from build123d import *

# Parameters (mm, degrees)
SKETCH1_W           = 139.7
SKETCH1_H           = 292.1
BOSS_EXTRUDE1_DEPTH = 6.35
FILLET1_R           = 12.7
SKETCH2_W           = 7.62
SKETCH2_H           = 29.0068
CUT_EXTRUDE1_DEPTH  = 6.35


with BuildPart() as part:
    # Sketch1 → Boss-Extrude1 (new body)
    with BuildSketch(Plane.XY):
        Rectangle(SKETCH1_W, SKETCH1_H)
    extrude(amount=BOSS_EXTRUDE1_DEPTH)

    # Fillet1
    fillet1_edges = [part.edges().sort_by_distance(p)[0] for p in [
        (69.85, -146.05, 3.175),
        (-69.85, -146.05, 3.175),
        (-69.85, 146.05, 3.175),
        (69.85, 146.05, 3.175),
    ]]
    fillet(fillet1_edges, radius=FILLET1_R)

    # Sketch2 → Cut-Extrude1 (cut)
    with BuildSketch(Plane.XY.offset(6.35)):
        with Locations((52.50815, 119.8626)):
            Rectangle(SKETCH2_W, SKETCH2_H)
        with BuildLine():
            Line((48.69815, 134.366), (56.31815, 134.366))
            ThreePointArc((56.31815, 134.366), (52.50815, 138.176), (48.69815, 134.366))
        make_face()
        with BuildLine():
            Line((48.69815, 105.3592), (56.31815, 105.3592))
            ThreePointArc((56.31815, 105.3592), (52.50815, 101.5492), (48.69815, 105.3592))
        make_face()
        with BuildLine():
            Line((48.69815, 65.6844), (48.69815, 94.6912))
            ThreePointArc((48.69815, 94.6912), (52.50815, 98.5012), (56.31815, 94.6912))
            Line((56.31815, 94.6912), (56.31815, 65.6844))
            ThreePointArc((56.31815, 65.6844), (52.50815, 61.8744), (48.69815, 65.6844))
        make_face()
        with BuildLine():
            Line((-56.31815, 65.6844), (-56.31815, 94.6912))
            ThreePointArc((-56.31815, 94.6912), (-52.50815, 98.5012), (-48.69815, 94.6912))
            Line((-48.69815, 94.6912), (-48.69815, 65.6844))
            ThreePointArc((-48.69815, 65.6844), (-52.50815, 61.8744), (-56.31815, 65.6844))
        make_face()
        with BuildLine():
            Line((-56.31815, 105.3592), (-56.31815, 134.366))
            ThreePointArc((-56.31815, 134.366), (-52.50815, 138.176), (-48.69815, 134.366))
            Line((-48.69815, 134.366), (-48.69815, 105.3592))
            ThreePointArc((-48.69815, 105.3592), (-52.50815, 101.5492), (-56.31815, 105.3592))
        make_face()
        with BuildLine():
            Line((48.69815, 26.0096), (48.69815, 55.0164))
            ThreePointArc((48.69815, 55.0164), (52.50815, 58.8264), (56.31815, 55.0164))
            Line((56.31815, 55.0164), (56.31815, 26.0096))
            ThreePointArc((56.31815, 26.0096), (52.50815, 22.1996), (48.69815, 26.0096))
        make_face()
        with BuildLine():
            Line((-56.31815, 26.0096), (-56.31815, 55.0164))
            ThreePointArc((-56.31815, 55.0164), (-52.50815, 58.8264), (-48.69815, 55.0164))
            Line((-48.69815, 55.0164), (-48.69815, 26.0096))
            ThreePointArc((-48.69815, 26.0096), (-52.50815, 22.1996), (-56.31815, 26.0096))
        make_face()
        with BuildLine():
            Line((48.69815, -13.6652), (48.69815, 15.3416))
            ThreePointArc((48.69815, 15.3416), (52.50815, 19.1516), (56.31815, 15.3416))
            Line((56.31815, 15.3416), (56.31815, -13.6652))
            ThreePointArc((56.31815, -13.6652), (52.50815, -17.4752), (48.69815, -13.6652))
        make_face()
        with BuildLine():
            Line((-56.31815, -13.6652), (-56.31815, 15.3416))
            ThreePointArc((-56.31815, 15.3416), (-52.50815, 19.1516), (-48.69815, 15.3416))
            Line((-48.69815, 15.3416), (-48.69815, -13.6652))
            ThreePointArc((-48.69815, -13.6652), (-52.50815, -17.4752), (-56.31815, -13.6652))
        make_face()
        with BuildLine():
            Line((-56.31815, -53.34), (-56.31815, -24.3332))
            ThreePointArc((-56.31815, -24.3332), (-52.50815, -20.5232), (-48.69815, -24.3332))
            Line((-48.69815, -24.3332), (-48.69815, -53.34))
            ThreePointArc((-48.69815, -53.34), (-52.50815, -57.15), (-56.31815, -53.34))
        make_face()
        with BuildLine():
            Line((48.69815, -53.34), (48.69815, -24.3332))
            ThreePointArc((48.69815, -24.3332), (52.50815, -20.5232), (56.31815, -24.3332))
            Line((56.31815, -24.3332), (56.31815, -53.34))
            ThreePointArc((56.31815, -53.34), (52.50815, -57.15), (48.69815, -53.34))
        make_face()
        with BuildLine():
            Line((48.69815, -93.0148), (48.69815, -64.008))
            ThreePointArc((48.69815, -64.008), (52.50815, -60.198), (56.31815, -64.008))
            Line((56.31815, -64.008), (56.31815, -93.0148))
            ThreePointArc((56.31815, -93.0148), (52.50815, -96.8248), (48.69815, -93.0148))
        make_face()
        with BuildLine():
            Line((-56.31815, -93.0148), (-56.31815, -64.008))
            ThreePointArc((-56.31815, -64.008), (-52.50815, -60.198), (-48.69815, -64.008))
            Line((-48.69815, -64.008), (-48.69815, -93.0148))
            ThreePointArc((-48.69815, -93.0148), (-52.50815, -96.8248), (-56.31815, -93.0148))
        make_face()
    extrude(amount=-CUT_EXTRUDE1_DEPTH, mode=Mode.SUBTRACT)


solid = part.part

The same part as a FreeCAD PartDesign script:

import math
import FreeCAD as App
import Part
import Sketcher
from FreeCAD import Vector
Q = App.Units.Quantity


def edges_at(feature, points):
    """Names of the edges that pass closest to the given points."""
    edges = feature.Shape.Edges
    near = lambda p: min(range(len(edges)), key=lambda i: edges[i].distToShape(Part.Vertex(*p))[0])
    return sorted({f"Edge{near(p) + 1}" for p in points})

doc = App.newDocument("Part")
body = doc.addObject("PartDesign::Body", "Body")

sketch1 = doc.addObject("Sketcher::SketchObject", "Sketch")
body.addObject(sketch1)
sketch1.AttachmentSupport = (doc.XY_Plane, [""])
sketch1.MapMode = "FlatFace"
sketch1.addGeometry([
    Part.LineSegment(Vector(-70, 146, 0), Vector(-70, -146, 0)),
    Part.LineSegment(Vector(-70, -146, 0), Vector(70, -146, 0)),
    Part.LineSegment(Vector(70, -146, 0), Vector(70, 146, 0)),
    Part.LineSegment(Vector(70, 146, 0), Vector(-70, 146, 0)),
], False)
sketch1.addConstraint([
    Sketcher.Constraint("Coincident", 0, 2, 1, 1),
    Sketcher.Constraint("Coincident", 1, 2, 2, 1),
    Sketcher.Constraint("Coincident", 2, 2, 3, 1),
    Sketcher.Constraint("Coincident", 3, 2, 0, 1),
    Sketcher.Constraint("Vertical", 0),
    Sketcher.Constraint("Horizontal", 1),
    Sketcher.Constraint("Vertical", 2),
    Sketcher.Constraint("Horizontal", 3),
    Sketcher.Constraint("Symmetric", 0, 2, 2, 2, -1, 1),
    Sketcher.Constraint("DistanceX", 1, 1, 1, 2, Q("5.5 in")),
    Sketcher.Constraint("DistanceY", 0, 2, 0, 1, Q("11.5 in")),
])
pad1 = doc.addObject("PartDesign::Pad", "Pad")
body.addObject(pad1)
pad1.Profile = sketch1
pad1.Length = Q("0.25 in")
doc.recompute()

fillet = doc.addObject("PartDesign::Fillet", "Fillet")
body.addObject(fillet)
fillet.Base = (pad1, edges_at(pad1, [
    (69.85, -146.05, 3.175),
    (-69.85, -146.05, 3.175),
    (-69.85, 146.05, 3.175),
    (69.85, 146.05, 3.175),
]))
fillet.Radius = Q("0.5 in")

sketch2 = doc.addObject("Sketcher::SketchObject", "Sketch001")
body.addObject(sketch2)
sketch2.AttachmentSupport = (doc.XY_Plane, [""])
sketch2.MapMode = "FlatFace"
sketch2.AttachmentOffset = App.Placement(Vector(0, 0, 0.25 * 25.4), App.Rotation())
sketch2.addGeometry([
    Part.LineSegment(Vector(48.7, 134.4, 0), Vector(48.7, 105.4, 0)),
    Part.ArcOfCircle(Part.Circle(Vector(52.5, 105.4, 0), Vector(0, 0, 1), 3.8), math.radians(180), math.radians(360)),
    Part.LineSegment(Vector(56.3, 105.4, 0), Vector(56.3, 134.4, 0)),
    Part.ArcOfCircle(Part.Circle(Vector(52.5, 134.4, 0), Vector(0, 0, 1), 3.8), math.radians(0), math.radians(180)),
    Part.LineSegment(Vector(48.7, 94.7, 0), Vector(48.7, 65.7, 0)),
    Part.ArcOfCircle(Part.Circle(Vector(52.5, 65.7, 0), Vector(0, 0, 1), 3.8), math.radians(180), math.radians(360)),
    Part.LineSegment(Vector(56.3, 65.7, 0), Vector(56.3, 94.7, 0)),
    Part.ArcOfCircle(Part.Circle(Vector(52.5, 94.7, 0), Vector(0, 0, 1), 3.8), math.radians(0), math.radians(180)),
    Part.LineSegment(Vector(-56.3, 94.7, 0), Vector(-56.3, 65.7, 0)),
    Part.ArcOfCircle(Part.Circle(Vector(-52.5, 65.7, 0), Vector(0, 0, 1), 3.8), math.radians(180), math.radians(360)),
    Part.LineSegment(Vector(-48.7, 65.7, 0), Vector(-48.7, 94.7, 0)),
    Part.ArcOfCircle(Part.Circle(Vector(-52.5, 94.7, 0), Vector(0, 0, 1), 3.8), math.radians(0), math.radians(180)),
    Part.LineSegment(Vector(-56.3, 134.4, 0), Vector(-56.3, 105.4, 0)),
    Part.ArcOfCircle(Part.Circle(Vector(-52.5, 105.4, 0), Vector(0, 0, 1), 3.8), math.radians(180), math.radians(360)),
    Part.LineSegment(Vector(-48.7, 105.4, 0), Vector(-48.7, 134.4, 0)),
    Part.ArcOfCircle(Part.Circle(Vector(-52.5, 134.4, 0), Vector(0, 0, 1), 3.8), math.radians(0), math.radians(180)),
    Part.LineSegment(Vector(48.7, 55, 0), Vector(48.7, 26, 0)),
    Part.ArcOfCircle(Part.Circle(Vector(52.5, 26, 0), Vector(0, 0, 1), 3.8), math.radians(180), math.radians(360)),
    Part.LineSegment(Vector(56.3, 26, 0), Vector(56.3, 55, 0)),
    Part.ArcOfCircle(Part.Circle(Vector(52.5, 55, 0), Vector(0, 0, 1), 3.8), math.radians(0), math.radians(180)),
    Part.LineSegment(Vector(-56.3, 55, 0), Vector(-56.3, 26, 0)),
    Part.ArcOfCircle(Part.Circle(Vector(-52.5, 26, 0), Vector(0, 0, 1), 3.8), math.radians(180), math.radians(360)),
    Part.LineSegment(Vector(-48.7, 26, 0), Vector(-48.7, 55, 0)),
    Part.ArcOfCircle(Part.Circle(Vector(-52.5, 55, 0), Vector(0, 0, 1), 3.8), math.radians(0), math.radians(180)),
    Part.LineSegment(Vector(48.7, 15.3, 0), Vector(48.7, -13.7, 0)),
    Part.ArcOfCircle(Part.Circle(Vector(52.5, -13.7, 0), Vector(0, 0, 1), 3.8), math.radians(180), math.radians(360)),
    Part.LineSegment(Vector(56.3, -13.7, 0), Vector(56.3, 15.3, 0)),
    Part.ArcOfCircle(Part.Circle(Vector(52.5, 15.3, 0), Vector(0, 0, 1), 3.8), math.radians(0), math.radians(180)),
    Part.LineSegment(Vector(-56.3, 15.3, 0), Vector(-56.3, -13.7, 0)),
    Part.ArcOfCircle(Part.Circle(Vector(-52.5, -13.7, 0), Vector(0, 0, 1), 3.8), math.radians(180), math.radians(360)),
    Part.LineSegment(Vector(-48.7, -13.7, 0), Vector(-48.7, 15.3, 0)),
    Part.ArcOfCircle(Part.Circle(Vector(-52.5, 15.3, 0), Vector(0, 0, 1), 3.8), math.radians(0), math.radians(180)),
    Part.LineSegment(Vector(-56.3, -24.3, 0), Vector(-56.3, -53.3, 0)),
    Part.ArcOfCircle(Part.Circle(Vector(-52.5, -53.3, 0), Vector(0, 0, 1), 3.8), math.radians(180), math.radians(360)),
    Part.LineSegment(Vector(-48.7, -53.3, 0), Vector(-48.7, -24.3, 0)),
    Part.ArcOfCircle(Part.Circle(Vector(-52.5, -24.3, 0), Vector(0, 0, 1), 3.8), math.radians(0), math.radians(180)),
    Part.LineSegment(Vector(48.7, -24.3, 0), Vector(48.7, -53.3, 0)),
    Part.ArcOfCircle(Part.Circle(Vector(52.5, -53.3, 0), Vector(0, 0, 1), 3.8), math.radians(180), math.radians(360)),
    Part.LineSegment(Vector(56.3, -53.3, 0), Vector(56.3, -24.3, 0)),
    Part.ArcOfCircle(Part.Circle(Vector(52.5, -24.3, 0), Vector(0, 0, 1), 3.8), math.radians(0), math.radians(180)),
    Part.LineSegment(Vector(48.7, -64, 0), Vector(48.7, -93, 0)),
    Part.ArcOfCircle(Part.Circle(Vector(52.5, -93, 0), Vector(0, 0, 1), 3.8), math.radians(180), math.radians(360)),
    Part.LineSegment(Vector(56.3, -93, 0), Vector(56.3, -64, 0)),
    Part.ArcOfCircle(Part.Circle(Vector(52.5, -64, 0), Vector(0, 0, 1), 3.8), math.radians(0), math.radians(180)),
    Part.LineSegment(Vector(-56.3, -64, 0), Vector(-56.3, -93, 0)),
    Part.ArcOfCircle(Part.Circle(Vector(-52.5, -93, 0), Vector(0, 0, 1), 3.8), math.radians(180), math.radians(360)),
    Part.LineSegment(Vector(-48.7, -93, 0), Vector(-48.7, -64, 0)),
    Part.ArcOfCircle(Part.Circle(Vector(-52.5, -64, 0), Vector(0, 0, 1), 3.8), math.radians(0), math.radians(180)),
], False)
sketch2.addConstraint([
    Sketcher.Constraint("Tangent", 0, 2, 1, 1),
    Sketcher.Constraint("Tangent", 1, 2, 2, 1),
    Sketcher.Constraint("Tangent", 2, 2, 3, 1),
    Sketcher.Constraint("Tangent", 3, 2, 0, 1),
    Sketcher.Constraint("Tangent", 4, 2, 5, 1),
    Sketcher.Constraint("Tangent", 5, 2, 6, 1),
    Sketcher.Constraint("Tangent", 6, 2, 7, 1),
    Sketcher.Constraint("Tangent", 7, 2, 4, 1),
    Sketcher.Constraint("Tangent", 8, 2, 9, 1),
    Sketcher.Constraint("Tangent", 9, 2, 10, 1),
    Sketcher.Constraint("Tangent", 10, 2, 11, 1),
    Sketcher.Constraint("Tangent", 11, 2, 8, 1),
    Sketcher.Constraint("Tangent", 12, 2, 13, 1),
    Sketcher.Constraint("Tangent", 13, 2, 14, 1),
    Sketcher.Constraint("Tangent", 14, 2, 15, 1),
    Sketcher.Constraint("Tangent", 15, 2, 12, 1),
    Sketcher.Constraint("Tangent", 16, 2, 17, 1),
    Sketcher.Constraint("Tangent", 17, 2, 18, 1),
    Sketcher.Constraint("Tangent", 18, 2, 19, 1),
    Sketcher.Constraint("Tangent", 19, 2, 16, 1),
    Sketcher.Constraint("Tangent", 20, 2, 21, 1),
    Sketcher.Constraint("Tangent", 21, 2, 22, 1),
    Sketcher.Constraint("Tangent", 22, 2, 23, 1),
    Sketcher.Constraint("Tangent", 23, 2, 20, 1),
    Sketcher.Constraint("Tangent", 24, 2, 25, 1),
    Sketcher.Constraint("Tangent", 25, 2, 26, 1),
    Sketcher.Constraint("Tangent", 26, 2, 27, 1),
    Sketcher.Constraint("Tangent", 27, 2, 24, 1),
    Sketcher.Constraint("Tangent", 28, 2, 29, 1),
    Sketcher.Constraint("Tangent", 29, 2, 30, 1),
    Sketcher.Constraint("Tangent", 30, 2, 31, 1),
    Sketcher.Constraint("Tangent", 31, 2, 28, 1),
    Sketcher.Constraint("Tangent", 32, 2, 33, 1),
    Sketcher.Constraint("Tangent", 33, 2, 34, 1),
    Sketcher.Constraint("Tangent", 34, 2, 35, 1),
    Sketcher.Constraint("Tangent", 35, 2, 32, 1),
    Sketcher.Constraint("Tangent", 36, 2, 37, 1),
    Sketcher.Constraint("Tangent", 37, 2, 38, 1),
    Sketcher.Constraint("Tangent", 38, 2, 39, 1),
    Sketcher.Constraint("Tangent", 39, 2, 36, 1),
    Sketcher.Constraint("Tangent", 40, 2, 41, 1),
    Sketcher.Constraint("Tangent", 41, 2, 42, 1),
    Sketcher.Constraint("Tangent", 42, 2, 43, 1),
    Sketcher.Constraint("Tangent", 43, 2, 40, 1),
    Sketcher.Constraint("Tangent", 44, 2, 45, 1),
    Sketcher.Constraint("Tangent", 45, 2, 46, 1),
    Sketcher.Constraint("Tangent", 46, 2, 47, 1),
    Sketcher.Constraint("Tangent", 47, 2, 44, 1),
    Sketcher.Constraint("Vertical", 0),
    Sketcher.Constraint("Vertical", 2),
    Sketcher.Constraint("Vertical", 4),
    Sketcher.Constraint("Vertical", 6),
    Sketcher.Constraint("Vertical", 8),
    Sketcher.Constraint("Vertical", 10),
    Sketcher.Constraint("Vertical", 12),
    Sketcher.Constraint("Vertical", 14),
    Sketcher.Constraint("Vertical", 16),
    Sketcher.Constraint("Vertical", 18),
    Sketcher.Constraint("Vertical", 20),
    Sketcher.Constraint("Vertical", 22),
    Sketcher.Constraint("Vertical", 24),
    Sketcher.Constraint("Vertical", 26),
    Sketcher.Constraint("Vertical", 28),
    Sketcher.Constraint("Vertical", 30),
    Sketcher.Constraint("Vertical", 32),
    Sketcher.Constraint("Vertical", 34),
    Sketcher.Constraint("Vertical", 36),
    Sketcher.Constraint("Vertical", 38),
    Sketcher.Constraint("Vertical", 40),
    Sketcher.Constraint("Vertical", 42),
    Sketcher.Constraint("Vertical", 44),
    Sketcher.Constraint("Vertical", 46),
    Sketcher.Constraint("Equal", 3, 5),
    Sketcher.Constraint("Equal", 7, 9),
    Sketcher.Constraint("Equal", 11, 13),
    Sketcher.Constraint("Equal", 15, 17),
    Sketcher.Constraint("Equal", 19, 21),
    Sketcher.Constraint("Equal", 23, 25),
    Sketcher.Constraint("Equal", 27, 29),
    Sketcher.Constraint("Equal", 31, 33),
    Sketcher.Constraint("Equal", 35, 37),
    Sketcher.Constraint("Equal", 39, 41),
    Sketcher.Constraint("Equal", 43, 45),
    Sketcher.Constraint("Symmetric", 5, 3, 9, 3, -2),
    Sketcher.Constraint("Symmetric", 1, 3, 13, 3, -2),
    Sketcher.Constraint("Symmetric", 17, 3, 21, 3, -2),
    Sketcher.Constraint("Symmetric", 25, 3, 29, 3, -2),
    Sketcher.Constraint("Symmetric", 33, 3, 37, 3, -2),
    Sketcher.Constraint("Symmetric", 41, 3, 45, 3, -2),
    Sketcher.Constraint("Horizontal", 7, 3, 11, 3),
    Sketcher.Constraint("Horizontal", 3, 3, 15, 3),
    Sketcher.Constraint("Horizontal", 19, 3, 23, 3),
    Sketcher.Constraint("Horizontal", 27, 3, 31, 3),
    Sketcher.Constraint("Horizontal", 35, 3, 39, 3),
    Sketcher.Constraint("Horizontal", 43, 3, 47, 3),
    Sketcher.Constraint("Vertical", 3, 3, 5, 3),
    Sketcher.Constraint("Vertical", 7, 3, 17, 3),
    Sketcher.Constraint("Vertical", 19, 3, 25, 3),
    Sketcher.Constraint("Vertical", 31, 3, 33, 3),
    Sketcher.Constraint("Vertical", 39, 3, 41, 3),
    Sketcher.Constraint("Equal", 2, 4),
    Sketcher.Constraint("Equal", 14, 16),
    Sketcher.Constraint("Equal", 22, 24),
    Sketcher.Constraint("Equal", 30, 32),
    Sketcher.Constraint("Equal", 38, 40),
    Sketcher.Constraint("Radius", 1, Q("0.15 in")),
    Sketcher.Constraint("DistanceY", 33, 3, -1, 1, Q("2.1 in")),
    Sketcher.Constraint("DistanceY", 0, 2, 0, 1, Q("1.142 in")),
    Sketcher.Constraint("DistanceY", -1, 1, 3, 3, Q("5.29 in")),
    Sketcher.Constraint("DistanceY", 43, 3, -1, 1, Q("2.52 in")),
    Sketcher.Constraint("DistanceY", -1, 1, 5, 3, Q("2.586 in")),
    Sketcher.Constraint("DistanceY", -1, 1, 17, 3, Q("1.024 in")),
    Sketcher.Constraint("DistanceY", 25, 3, -1, 1, Q("0.538 in")),
    Sketcher.Constraint("DistanceX", -1, 1, 1, 3, Q("52.50815 mm")),
])
pocket1 = doc.addObject("PartDesign::Pocket", "Pocket")
body.addObject(pocket1)
pocket1.Profile = sketch2
pocket1.Length = Q("0.25 in")

doc.recompute()
